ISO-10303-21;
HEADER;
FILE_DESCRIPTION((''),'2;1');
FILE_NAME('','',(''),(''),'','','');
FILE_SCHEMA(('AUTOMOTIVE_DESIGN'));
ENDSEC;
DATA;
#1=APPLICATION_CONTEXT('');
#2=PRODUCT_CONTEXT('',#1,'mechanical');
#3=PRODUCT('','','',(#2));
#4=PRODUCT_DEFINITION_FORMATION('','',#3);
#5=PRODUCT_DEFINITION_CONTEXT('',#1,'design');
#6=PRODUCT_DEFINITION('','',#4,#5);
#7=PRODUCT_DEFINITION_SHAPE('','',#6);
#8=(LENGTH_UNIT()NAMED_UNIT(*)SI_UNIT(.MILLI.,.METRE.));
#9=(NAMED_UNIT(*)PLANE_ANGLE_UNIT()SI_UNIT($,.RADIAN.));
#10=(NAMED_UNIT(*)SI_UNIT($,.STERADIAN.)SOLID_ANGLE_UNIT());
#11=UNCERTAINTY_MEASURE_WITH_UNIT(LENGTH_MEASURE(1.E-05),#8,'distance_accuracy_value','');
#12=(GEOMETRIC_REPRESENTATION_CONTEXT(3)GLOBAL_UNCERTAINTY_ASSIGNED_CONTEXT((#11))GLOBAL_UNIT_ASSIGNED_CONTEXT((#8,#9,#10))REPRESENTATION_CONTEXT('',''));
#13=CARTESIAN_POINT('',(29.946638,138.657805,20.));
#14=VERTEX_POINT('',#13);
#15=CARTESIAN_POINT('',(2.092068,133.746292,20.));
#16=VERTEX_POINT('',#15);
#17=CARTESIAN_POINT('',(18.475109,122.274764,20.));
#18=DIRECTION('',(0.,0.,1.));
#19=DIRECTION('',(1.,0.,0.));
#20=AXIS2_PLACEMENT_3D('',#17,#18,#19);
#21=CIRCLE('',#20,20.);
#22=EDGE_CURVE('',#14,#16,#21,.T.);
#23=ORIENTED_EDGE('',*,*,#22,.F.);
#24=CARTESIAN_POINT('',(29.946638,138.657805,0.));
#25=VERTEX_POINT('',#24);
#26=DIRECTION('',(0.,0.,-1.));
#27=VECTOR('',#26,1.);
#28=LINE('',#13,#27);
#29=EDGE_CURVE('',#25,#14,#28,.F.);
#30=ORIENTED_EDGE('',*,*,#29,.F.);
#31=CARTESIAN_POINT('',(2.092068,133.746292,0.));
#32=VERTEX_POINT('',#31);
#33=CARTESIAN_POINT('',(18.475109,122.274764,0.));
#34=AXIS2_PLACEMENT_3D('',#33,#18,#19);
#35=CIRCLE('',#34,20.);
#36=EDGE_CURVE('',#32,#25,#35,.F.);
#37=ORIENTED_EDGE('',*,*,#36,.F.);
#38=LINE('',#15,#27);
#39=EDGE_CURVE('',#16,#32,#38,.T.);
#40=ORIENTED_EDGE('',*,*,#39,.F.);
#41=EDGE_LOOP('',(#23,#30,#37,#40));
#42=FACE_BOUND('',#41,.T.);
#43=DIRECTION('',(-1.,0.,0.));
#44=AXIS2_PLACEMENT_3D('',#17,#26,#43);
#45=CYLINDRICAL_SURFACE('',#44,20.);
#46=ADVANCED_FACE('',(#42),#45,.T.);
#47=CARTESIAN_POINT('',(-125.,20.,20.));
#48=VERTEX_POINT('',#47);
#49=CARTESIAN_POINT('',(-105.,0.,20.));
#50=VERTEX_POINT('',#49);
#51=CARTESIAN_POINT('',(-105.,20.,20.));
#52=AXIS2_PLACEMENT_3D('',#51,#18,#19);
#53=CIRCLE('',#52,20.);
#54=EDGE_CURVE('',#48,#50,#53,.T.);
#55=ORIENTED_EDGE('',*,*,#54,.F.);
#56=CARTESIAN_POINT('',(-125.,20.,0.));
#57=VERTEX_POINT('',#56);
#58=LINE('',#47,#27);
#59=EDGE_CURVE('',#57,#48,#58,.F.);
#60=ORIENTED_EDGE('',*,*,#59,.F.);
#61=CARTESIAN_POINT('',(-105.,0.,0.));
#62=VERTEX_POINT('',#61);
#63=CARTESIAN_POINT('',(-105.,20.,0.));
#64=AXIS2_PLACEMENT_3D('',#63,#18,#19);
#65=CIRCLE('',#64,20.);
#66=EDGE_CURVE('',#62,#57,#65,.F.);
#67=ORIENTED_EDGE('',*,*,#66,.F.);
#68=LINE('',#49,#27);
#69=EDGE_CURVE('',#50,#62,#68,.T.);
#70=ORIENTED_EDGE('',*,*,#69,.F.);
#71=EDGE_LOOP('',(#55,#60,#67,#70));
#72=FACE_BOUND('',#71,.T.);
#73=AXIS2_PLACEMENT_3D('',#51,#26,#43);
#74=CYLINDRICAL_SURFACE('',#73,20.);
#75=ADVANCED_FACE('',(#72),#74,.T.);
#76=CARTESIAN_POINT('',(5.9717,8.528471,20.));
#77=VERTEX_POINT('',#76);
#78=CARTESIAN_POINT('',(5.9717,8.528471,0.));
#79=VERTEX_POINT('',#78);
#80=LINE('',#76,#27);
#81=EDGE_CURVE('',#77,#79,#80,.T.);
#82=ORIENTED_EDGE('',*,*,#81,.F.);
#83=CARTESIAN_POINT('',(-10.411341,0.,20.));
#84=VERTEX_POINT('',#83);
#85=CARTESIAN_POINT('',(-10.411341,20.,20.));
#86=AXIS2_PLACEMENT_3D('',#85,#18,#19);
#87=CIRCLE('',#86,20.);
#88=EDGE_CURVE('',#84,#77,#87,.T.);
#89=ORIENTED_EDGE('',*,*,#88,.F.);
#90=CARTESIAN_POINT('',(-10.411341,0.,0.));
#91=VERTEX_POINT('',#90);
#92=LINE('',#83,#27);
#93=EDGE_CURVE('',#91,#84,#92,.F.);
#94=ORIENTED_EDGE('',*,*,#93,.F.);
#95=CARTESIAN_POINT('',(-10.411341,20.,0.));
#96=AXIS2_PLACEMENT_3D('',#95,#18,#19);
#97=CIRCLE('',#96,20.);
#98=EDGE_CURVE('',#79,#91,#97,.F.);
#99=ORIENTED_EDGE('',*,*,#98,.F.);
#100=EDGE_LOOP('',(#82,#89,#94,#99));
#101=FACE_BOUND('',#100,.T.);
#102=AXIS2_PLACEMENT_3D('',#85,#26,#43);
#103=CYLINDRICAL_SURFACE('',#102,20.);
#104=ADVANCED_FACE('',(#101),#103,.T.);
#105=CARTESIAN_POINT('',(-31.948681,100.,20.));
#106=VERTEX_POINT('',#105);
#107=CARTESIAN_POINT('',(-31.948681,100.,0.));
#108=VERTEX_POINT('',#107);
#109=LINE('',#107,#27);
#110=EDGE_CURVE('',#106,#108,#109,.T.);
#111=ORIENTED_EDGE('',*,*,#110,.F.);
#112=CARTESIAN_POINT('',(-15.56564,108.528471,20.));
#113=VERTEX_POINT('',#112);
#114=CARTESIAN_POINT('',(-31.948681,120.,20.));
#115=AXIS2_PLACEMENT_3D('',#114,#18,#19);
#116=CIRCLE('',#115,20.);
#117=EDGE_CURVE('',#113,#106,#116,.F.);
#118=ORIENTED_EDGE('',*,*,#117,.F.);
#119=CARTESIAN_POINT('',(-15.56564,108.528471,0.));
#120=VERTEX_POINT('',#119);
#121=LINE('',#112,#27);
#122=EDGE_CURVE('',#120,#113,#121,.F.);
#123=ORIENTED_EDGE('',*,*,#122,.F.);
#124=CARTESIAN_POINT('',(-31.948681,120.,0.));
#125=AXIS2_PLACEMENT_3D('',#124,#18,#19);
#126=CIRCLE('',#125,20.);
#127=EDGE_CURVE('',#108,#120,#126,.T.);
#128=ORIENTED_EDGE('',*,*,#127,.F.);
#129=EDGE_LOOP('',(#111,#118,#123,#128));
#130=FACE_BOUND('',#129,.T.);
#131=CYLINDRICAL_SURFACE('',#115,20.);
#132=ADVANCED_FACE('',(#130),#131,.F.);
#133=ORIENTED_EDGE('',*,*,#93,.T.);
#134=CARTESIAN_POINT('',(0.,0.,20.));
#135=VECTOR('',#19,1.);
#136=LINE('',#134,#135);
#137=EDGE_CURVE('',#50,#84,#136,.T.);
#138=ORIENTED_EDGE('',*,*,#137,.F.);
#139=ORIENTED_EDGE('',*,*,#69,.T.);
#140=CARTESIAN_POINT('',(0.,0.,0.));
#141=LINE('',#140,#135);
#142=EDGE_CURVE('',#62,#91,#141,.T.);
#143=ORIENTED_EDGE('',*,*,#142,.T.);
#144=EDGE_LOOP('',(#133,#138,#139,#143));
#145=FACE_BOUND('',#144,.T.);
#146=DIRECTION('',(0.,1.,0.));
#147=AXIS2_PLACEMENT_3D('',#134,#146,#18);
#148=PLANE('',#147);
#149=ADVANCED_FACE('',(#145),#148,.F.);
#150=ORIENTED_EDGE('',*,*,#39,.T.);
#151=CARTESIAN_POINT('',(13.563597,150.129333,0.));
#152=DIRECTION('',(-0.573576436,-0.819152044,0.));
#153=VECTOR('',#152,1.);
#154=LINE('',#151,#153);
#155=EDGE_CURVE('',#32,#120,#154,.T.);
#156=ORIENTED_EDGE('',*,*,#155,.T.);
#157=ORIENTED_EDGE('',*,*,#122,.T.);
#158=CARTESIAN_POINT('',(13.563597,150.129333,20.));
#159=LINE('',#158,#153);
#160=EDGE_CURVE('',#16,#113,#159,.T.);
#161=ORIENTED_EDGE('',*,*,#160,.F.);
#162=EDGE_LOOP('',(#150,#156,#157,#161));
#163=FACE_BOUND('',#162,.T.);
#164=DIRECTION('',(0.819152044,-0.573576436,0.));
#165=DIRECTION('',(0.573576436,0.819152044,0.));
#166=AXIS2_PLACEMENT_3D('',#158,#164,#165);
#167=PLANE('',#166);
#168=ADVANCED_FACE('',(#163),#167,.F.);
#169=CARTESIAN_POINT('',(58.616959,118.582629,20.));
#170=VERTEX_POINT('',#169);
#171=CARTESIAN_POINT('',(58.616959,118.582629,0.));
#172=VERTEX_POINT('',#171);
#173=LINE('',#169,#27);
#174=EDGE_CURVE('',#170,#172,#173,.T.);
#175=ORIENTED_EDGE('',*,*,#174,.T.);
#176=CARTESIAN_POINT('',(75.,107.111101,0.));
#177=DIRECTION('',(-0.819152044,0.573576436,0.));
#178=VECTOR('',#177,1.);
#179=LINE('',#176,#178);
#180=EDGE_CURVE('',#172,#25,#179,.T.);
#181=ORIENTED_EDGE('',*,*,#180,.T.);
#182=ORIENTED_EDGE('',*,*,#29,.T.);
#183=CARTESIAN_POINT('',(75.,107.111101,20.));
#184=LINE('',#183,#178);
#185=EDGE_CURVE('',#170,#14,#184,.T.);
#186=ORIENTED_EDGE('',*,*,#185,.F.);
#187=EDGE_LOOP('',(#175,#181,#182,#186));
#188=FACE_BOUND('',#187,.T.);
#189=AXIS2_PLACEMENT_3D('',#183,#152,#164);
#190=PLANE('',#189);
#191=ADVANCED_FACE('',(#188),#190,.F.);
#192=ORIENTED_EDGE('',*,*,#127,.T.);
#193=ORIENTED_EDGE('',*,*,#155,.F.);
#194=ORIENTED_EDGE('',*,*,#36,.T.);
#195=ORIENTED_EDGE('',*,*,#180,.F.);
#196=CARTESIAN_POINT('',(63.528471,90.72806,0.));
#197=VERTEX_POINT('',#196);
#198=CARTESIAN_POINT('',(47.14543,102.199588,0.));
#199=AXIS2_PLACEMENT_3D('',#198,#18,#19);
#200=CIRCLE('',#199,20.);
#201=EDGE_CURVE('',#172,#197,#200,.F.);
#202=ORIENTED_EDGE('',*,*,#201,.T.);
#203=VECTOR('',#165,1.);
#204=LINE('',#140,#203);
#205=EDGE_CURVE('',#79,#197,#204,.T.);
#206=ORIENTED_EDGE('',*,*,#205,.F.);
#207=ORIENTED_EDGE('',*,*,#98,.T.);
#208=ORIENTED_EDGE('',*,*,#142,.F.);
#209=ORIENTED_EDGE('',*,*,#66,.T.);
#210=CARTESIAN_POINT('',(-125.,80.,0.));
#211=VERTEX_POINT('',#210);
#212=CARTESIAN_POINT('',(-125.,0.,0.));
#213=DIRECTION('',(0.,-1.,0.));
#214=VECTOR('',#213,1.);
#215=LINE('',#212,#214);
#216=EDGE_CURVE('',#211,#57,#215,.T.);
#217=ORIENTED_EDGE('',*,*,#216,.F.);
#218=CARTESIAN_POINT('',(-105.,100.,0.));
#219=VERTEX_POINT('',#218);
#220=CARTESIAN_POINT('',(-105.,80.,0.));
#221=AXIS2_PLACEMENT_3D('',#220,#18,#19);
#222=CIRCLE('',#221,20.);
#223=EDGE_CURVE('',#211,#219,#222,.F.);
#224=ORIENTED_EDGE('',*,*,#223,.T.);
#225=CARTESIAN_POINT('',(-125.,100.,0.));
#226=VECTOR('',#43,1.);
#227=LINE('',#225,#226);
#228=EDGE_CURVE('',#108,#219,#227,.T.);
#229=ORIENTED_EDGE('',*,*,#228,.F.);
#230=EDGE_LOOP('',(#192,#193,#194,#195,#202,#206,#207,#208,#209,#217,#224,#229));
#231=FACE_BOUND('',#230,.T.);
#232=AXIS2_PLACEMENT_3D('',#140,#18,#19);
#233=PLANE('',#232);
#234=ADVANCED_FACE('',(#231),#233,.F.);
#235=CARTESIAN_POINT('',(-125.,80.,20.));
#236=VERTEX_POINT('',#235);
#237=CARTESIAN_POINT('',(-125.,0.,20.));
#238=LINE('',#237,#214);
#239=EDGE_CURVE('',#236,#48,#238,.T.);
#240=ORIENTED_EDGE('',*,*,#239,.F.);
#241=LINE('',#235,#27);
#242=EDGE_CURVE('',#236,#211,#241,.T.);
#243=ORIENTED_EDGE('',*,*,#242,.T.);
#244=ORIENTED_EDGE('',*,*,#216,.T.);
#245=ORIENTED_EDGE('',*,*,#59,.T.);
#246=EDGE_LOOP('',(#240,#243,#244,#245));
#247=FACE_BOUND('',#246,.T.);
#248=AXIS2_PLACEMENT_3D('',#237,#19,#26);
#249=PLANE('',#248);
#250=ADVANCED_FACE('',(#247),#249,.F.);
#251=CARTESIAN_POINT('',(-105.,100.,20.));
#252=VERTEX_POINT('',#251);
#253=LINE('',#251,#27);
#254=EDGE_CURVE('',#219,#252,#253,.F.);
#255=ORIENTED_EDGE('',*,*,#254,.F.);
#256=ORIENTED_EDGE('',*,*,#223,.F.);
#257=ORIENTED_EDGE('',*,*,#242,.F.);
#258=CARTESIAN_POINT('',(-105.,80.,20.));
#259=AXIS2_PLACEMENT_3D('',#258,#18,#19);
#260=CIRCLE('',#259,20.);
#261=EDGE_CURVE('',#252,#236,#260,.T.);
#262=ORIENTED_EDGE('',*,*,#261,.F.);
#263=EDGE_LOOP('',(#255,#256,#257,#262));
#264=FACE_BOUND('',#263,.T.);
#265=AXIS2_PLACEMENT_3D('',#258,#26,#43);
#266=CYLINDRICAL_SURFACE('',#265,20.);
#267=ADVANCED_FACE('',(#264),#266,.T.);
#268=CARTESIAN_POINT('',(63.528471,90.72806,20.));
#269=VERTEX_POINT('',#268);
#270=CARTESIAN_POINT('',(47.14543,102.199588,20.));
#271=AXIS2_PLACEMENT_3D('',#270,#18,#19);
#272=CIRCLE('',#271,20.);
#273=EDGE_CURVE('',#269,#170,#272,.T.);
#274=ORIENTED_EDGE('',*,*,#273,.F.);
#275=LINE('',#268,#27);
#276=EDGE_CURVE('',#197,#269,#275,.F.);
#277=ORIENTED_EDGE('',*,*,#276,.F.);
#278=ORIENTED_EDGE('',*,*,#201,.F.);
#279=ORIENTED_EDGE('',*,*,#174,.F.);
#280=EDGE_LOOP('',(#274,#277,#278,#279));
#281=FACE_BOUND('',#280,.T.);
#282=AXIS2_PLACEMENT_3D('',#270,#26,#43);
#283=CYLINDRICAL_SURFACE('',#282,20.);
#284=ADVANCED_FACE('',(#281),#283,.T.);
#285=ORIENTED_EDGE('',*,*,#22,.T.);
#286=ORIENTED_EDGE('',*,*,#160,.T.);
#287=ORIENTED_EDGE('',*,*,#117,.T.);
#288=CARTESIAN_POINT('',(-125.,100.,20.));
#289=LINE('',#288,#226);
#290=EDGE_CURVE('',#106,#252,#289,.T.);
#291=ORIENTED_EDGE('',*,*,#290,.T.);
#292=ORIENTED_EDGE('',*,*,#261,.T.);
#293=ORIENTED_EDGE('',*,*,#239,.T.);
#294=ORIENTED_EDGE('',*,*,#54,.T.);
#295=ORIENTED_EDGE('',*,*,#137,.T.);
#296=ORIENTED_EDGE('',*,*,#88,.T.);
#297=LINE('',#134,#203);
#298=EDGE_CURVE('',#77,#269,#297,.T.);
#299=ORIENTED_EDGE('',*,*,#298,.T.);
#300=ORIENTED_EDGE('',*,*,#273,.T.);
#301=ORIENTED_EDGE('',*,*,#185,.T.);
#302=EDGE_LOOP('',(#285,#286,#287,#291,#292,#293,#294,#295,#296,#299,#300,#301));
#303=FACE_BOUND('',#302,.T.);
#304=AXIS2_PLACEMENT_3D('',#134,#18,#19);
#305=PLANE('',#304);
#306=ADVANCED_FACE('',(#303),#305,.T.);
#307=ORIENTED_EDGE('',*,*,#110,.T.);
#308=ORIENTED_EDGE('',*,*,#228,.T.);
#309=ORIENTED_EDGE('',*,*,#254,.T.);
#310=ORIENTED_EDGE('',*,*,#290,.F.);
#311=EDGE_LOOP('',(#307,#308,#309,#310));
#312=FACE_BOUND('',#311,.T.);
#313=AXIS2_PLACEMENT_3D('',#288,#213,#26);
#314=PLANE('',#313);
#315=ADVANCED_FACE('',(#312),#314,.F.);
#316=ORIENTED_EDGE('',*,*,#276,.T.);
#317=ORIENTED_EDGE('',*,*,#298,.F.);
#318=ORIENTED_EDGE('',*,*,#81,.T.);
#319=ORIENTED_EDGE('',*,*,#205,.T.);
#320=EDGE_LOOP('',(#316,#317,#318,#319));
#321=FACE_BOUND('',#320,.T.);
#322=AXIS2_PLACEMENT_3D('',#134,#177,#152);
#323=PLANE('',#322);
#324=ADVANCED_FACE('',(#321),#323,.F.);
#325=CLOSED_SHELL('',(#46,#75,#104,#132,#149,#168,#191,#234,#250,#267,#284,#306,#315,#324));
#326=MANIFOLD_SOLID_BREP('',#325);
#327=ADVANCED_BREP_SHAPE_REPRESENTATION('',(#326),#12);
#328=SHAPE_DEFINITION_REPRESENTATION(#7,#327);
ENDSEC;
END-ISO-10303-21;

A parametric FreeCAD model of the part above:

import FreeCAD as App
import Part
import Sketcher
from FreeCAD import Vector
Q = App.Units.Quantity


def edges_at(feature, points):
    """Names of the edges that pass closest to the given points."""
    edges = feature.Shape.Edges
    near = lambda p: min(range(len(edges)), key=lambda i: edges[i].distToShape(Part.Vertex(*p))[0])
    return sorted({f"Edge{near(p) + 1}" for p in points})


def add_polygon(sketch, points):
    """Adds a closed chain of lines whose ends are joined by coincident constraints."""
    first, n = sketch.GeometryCount, len(points)
    for a, b in zip(points, points[1:] + points[:1]):
        sketch.addGeometry(Part.LineSegment(App.Vector(*a, 0), App.Vector(*b, 0)), False)
    for i in range(n):
        sketch.addConstraint(Sketcher.Constraint("Coincident", first + i, 2, first + (i + 1) % n, 1))

doc = App.newDocument("Part")
body = doc.addObject("PartDesign::Body", "Body")

# Sketch on XY plane
sketch1 = body.newObject("Sketcher::SketchObject", "Sketch")
sketch1.AttachmentSupport = (doc.getObject("XY_Plane"), [""])
sketch1.MapMode = "FlatFace"
add_polygon(sketch1, [(-125, 0), (0, 0), (75, 107), (14, 150), (-22, 100), (-125, 100)])  # lines 0-5
sketch1.addConstraint([
    Sketcher.Constraint("Horizontal", 0),
    Sketcher.Constraint("Horizontal", 4),
    Sketcher.Constraint("Vertical", 5),
    Sketcher.Constraint("Coincident", 0, 2, -1, 1),
    Sketcher.Constraint("Perpendicular", 1, 2),
    Sketcher.Constraint("Perpendicular", 2, 3),
    Sketcher.Constraint("DistanceX", 0, 1, 0, 2, Q("125 mm")),
    Sketcher.Constraint("DistanceY", 5, 2, 5, 1, Q("100 mm")),
    Sketcher.Constraint("Angle", 1, Q("55 deg")),
    Sketcher.Constraint("Distance", 2, Q("75 mm")),
    Sketcher.Constraint("DistanceX", -1, 1, 1, 2, Q("75 mm")),
])
pad1 = body.newObject("PartDesign::Pad", "Pad")
pad1.Profile = sketch1
pad1.Length = 20
doc.recompute()

fillet = body.newObject("PartDesign::Fillet", "Fillet")
fillet.Base = (pad1, edges_at(pad1, [
    (0, 0, 10),
    (-125, 0, 10),
    (-125, 100, 10),
    (-21.537, 100, 10),
    (13.564, 150.129, 10),
    (75, 107.111, 10),
]))
fillet.Radius = 20

doc.recompute()
